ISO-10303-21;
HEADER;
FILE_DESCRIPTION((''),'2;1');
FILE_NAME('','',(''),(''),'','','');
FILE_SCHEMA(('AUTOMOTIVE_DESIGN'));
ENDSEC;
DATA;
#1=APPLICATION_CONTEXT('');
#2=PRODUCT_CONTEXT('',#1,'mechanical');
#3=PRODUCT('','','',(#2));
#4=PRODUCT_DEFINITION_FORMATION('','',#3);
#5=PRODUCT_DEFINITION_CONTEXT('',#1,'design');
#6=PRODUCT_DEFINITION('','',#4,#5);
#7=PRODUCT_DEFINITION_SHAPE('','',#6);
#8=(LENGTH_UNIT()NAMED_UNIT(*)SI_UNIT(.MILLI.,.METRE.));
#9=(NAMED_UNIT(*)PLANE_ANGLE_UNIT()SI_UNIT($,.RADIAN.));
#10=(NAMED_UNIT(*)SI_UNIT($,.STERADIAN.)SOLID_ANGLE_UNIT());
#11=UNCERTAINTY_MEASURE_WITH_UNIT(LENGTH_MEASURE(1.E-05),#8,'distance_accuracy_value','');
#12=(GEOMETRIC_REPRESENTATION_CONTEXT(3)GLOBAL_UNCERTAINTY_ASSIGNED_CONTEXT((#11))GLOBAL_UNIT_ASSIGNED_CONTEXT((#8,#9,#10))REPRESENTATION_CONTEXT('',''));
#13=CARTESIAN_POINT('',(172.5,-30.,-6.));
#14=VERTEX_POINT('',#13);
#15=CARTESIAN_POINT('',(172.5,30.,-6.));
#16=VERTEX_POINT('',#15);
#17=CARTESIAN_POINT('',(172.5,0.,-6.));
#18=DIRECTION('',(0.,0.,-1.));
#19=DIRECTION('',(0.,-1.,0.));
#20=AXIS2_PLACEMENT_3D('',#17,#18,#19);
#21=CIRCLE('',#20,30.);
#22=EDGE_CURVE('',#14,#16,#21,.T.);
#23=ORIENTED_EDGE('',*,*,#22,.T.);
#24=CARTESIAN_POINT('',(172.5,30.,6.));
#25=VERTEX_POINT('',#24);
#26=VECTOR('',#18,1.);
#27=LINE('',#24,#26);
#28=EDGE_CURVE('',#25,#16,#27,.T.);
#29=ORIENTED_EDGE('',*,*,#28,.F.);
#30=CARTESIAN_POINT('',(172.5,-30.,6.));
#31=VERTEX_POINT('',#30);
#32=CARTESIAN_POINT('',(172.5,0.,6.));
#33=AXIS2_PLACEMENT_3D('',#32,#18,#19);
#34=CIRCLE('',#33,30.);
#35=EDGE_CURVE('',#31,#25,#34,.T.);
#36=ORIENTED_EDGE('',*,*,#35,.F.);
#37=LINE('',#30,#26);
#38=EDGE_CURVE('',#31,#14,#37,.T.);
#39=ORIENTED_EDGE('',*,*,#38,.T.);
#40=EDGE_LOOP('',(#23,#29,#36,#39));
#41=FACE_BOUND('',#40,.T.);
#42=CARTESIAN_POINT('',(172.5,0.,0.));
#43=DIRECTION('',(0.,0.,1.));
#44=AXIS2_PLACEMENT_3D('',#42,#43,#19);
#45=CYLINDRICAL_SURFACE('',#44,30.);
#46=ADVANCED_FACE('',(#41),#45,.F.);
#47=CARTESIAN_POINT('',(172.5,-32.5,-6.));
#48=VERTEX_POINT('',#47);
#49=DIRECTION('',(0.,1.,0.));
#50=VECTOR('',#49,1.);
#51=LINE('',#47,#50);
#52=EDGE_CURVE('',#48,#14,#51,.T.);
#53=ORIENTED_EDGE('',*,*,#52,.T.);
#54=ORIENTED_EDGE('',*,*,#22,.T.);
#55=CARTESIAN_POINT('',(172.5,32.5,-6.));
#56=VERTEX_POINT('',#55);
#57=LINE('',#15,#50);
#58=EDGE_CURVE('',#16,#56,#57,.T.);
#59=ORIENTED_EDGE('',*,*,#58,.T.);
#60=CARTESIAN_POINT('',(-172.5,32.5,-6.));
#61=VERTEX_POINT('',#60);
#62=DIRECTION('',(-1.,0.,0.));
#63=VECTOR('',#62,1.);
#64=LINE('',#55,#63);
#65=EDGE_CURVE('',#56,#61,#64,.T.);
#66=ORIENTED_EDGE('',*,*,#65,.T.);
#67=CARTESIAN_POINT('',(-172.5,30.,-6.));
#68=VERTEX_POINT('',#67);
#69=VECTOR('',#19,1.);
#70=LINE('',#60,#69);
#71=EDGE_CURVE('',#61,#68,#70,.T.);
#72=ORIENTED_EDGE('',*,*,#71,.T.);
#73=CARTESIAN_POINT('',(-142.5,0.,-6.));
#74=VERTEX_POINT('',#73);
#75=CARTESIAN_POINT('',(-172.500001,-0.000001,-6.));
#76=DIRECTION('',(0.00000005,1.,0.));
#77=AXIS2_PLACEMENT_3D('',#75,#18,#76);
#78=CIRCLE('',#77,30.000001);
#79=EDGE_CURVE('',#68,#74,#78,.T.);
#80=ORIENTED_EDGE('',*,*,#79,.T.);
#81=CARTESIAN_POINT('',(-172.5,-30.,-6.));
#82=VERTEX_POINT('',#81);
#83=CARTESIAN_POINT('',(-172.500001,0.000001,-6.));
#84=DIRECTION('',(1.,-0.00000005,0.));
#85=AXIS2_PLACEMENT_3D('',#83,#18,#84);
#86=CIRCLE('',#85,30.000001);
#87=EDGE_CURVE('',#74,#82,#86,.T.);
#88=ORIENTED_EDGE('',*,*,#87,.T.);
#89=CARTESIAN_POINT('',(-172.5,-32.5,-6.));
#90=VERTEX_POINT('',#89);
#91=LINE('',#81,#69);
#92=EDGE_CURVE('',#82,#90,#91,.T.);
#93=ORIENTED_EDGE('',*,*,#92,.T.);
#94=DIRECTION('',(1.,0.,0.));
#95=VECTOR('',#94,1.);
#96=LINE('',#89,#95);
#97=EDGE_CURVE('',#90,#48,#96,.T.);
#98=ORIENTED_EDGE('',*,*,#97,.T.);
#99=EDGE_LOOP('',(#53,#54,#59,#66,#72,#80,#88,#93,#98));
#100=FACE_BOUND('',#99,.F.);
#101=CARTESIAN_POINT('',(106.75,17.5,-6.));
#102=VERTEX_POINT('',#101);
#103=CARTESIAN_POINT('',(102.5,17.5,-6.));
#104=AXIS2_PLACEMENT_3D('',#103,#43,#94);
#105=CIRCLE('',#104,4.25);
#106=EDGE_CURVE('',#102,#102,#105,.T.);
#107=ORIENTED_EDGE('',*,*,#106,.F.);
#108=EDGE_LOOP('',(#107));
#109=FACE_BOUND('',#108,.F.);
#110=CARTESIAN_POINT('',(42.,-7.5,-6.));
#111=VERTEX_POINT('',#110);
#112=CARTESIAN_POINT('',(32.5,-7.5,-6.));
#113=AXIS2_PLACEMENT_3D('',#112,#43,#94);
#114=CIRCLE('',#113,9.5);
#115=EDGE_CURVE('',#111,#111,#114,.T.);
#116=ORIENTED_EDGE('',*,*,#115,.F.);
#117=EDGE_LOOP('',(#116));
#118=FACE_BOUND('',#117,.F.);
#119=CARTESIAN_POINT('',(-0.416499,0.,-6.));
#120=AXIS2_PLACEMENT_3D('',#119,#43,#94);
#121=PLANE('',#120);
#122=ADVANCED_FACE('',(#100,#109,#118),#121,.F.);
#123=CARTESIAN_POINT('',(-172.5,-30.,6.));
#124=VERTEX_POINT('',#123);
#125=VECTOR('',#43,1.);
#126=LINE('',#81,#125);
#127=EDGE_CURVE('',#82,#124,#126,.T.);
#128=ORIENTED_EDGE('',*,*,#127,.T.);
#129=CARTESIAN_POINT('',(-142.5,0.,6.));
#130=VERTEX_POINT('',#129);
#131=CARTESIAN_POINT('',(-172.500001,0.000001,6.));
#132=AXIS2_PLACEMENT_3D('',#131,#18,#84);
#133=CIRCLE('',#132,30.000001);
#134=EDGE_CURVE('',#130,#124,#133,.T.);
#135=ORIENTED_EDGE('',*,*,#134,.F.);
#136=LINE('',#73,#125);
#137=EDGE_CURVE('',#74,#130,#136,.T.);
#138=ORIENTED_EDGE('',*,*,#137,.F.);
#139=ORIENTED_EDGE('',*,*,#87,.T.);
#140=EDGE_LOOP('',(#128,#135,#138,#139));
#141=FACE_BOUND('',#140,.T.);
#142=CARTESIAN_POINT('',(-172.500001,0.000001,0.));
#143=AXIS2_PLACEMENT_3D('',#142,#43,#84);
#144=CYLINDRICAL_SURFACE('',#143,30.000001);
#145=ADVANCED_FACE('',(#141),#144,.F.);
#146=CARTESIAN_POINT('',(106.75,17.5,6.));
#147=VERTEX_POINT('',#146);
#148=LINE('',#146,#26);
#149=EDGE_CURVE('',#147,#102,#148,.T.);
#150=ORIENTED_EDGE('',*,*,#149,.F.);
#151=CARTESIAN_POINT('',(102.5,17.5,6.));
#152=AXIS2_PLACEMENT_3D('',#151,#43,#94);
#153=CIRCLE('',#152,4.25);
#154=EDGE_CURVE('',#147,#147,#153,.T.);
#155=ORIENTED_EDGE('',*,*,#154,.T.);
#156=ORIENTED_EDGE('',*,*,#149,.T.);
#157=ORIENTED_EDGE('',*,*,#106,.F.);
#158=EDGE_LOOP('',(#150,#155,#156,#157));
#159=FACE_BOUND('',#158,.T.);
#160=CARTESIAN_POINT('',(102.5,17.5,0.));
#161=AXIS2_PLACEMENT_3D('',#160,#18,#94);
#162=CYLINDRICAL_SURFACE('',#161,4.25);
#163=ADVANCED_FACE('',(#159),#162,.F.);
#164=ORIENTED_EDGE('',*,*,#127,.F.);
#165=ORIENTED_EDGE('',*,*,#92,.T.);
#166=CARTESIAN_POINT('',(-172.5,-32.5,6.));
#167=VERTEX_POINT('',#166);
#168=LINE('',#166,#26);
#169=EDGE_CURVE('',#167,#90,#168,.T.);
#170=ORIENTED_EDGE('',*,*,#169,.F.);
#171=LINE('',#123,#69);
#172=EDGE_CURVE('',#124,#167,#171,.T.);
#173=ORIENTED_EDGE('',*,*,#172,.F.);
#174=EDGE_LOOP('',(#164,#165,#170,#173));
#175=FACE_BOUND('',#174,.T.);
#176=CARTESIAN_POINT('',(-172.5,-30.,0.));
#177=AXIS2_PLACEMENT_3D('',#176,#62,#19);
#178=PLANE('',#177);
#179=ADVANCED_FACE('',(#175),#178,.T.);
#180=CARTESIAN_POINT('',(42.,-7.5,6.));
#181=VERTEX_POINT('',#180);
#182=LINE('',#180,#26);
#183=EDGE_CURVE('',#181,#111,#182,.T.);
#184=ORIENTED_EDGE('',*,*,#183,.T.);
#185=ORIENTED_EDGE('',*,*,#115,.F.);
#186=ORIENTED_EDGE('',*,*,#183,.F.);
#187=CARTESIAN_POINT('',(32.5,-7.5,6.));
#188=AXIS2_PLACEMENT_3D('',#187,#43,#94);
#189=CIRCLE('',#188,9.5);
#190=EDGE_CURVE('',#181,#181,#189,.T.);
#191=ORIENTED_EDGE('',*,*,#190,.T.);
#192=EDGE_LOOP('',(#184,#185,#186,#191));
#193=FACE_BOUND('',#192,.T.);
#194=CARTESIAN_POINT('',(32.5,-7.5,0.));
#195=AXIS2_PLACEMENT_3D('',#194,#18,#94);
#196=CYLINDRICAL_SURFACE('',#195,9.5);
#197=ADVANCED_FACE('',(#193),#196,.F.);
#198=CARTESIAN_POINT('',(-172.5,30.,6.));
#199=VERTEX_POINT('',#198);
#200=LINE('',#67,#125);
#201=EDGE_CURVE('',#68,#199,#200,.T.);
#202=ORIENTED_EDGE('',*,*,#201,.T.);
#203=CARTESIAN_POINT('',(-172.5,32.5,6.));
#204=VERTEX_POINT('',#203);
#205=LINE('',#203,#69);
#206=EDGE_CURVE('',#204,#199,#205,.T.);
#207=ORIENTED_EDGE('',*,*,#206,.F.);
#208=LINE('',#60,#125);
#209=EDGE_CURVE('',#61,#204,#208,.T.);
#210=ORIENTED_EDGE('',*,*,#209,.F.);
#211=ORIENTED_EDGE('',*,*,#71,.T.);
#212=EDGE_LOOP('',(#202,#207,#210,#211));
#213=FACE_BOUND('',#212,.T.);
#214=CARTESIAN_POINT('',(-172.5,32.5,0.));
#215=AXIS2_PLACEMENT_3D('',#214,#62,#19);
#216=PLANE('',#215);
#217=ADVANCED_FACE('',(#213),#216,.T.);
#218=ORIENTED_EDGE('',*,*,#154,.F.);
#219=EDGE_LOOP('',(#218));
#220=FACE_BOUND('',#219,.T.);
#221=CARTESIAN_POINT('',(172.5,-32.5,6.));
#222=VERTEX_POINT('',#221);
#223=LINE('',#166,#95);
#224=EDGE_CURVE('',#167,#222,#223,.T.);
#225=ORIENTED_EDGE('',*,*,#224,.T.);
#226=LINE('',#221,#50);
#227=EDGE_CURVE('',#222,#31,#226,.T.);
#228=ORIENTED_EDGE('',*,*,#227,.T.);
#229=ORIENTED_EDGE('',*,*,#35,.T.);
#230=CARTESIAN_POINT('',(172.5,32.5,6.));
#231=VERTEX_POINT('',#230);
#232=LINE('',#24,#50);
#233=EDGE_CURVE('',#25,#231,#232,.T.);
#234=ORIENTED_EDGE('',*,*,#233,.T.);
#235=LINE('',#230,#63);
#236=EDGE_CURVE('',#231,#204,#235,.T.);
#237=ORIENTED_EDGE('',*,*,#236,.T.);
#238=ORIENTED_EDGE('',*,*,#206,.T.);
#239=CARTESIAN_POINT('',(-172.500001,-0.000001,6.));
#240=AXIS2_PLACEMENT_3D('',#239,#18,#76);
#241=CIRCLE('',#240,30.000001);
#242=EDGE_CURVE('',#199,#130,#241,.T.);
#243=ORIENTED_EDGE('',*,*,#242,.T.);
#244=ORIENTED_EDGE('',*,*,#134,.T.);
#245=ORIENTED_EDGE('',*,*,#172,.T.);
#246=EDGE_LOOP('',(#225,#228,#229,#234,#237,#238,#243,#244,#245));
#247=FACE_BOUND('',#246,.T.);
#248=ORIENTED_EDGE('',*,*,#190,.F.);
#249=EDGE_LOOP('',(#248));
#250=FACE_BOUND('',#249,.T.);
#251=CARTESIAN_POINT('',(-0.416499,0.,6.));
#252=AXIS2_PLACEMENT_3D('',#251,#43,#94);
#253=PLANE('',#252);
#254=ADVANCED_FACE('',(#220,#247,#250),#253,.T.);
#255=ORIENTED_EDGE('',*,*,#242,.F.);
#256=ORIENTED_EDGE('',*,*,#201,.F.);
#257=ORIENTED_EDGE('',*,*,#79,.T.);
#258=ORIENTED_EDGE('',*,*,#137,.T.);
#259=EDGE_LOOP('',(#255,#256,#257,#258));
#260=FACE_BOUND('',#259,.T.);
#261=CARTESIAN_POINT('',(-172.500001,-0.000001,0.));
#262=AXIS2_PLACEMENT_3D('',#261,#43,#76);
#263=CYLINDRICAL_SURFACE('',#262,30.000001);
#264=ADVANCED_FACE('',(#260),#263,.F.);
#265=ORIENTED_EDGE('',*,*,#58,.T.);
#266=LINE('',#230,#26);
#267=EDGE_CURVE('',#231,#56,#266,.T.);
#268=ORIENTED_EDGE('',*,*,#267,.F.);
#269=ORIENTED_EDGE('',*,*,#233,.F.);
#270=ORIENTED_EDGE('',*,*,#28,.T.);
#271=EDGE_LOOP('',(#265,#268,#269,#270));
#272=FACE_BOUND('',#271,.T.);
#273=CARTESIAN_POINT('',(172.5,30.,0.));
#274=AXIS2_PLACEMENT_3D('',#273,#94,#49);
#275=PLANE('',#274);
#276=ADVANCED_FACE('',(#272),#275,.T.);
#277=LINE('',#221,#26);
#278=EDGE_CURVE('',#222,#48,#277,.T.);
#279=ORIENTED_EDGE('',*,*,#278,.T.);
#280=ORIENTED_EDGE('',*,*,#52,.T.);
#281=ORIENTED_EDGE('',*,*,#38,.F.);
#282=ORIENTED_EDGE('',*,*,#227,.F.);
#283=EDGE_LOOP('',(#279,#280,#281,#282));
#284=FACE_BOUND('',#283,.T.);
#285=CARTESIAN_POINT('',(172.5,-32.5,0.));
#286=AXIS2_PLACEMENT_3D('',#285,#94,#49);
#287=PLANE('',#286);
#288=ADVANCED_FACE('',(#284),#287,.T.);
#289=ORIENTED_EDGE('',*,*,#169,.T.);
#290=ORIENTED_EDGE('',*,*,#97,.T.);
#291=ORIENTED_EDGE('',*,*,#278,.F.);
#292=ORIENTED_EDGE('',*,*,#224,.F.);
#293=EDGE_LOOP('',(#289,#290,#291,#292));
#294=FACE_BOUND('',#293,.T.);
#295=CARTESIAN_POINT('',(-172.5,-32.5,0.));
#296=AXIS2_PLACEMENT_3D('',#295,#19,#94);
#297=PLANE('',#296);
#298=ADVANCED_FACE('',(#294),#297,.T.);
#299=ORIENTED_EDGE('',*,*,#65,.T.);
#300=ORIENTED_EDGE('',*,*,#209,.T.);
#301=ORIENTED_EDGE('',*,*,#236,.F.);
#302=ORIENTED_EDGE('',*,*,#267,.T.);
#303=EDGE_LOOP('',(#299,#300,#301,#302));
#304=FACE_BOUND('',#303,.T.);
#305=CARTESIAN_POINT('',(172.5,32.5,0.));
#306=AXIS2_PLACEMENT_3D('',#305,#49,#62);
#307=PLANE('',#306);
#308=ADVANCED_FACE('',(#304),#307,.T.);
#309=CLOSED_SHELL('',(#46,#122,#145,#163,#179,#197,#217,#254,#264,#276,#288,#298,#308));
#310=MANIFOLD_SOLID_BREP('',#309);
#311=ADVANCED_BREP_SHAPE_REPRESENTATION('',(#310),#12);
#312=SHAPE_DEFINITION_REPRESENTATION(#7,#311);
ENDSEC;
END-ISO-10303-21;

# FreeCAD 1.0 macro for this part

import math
import FreeCAD as App
import Part
import Sketcher

doc = App.newDocument("Part")
body = doc.addObject("PartDesign::Body", "Body")

sketch1 = body.newObject("Sketcher::SketchObject", "Sketch")
sketch1.AttachmentSupport = (doc.getObject("XY_Plane"), [""])
sketch1.MapMode = "FlatFace"
sketch1.addGeometry([
    Part.LineSegment(App.Vector(172.5, 32.5, 0), App.Vector(-172.5, 32.5, 0)),
    Part.LineSegment(App.Vector(-172.5, 32.5, 0), App.Vector(-172.5, 30, 0)),
    Part.ArcOfCircle(Part.Circle(App.Vector(-172.5, 0, 0), App.Vector(0, 0, 1), 30), math.radians(0), math.radians(90)),
    Part.ArcOfCircle(Part.Circle(App.Vector(-172.5, 0, 0), App.Vector(0, 0, 1), 30), math.radians(-90), math.radians(0)),
    Part.LineSegment(App.Vector(-172.5, -30, 0), App.Vector(-172.5, -32.5, 0)),
    Part.LineSegment(App.Vector(-172.5, -32.5, 0), App.Vector(172.5, -32.5, 0)),
    Part.LineSegment(App.Vector(172.5, -32.5, 0), App.Vector(172.5, -30, 0)),
    Part.ArcOfCircle(Part.Circle(App.Vector(172.5, 0, 0), App.Vector(0, 0, 1), 30), math.radians(90), math.radians(270)),
    Part.LineSegment(App.Vector(172.5, 30, 0), App.Vector(172.5, 32.5, 0)),
    Part.Circle(App.Vector(32.5, -7.5, 0), App.Vector(0, 0, 1), 9.5),
    Part.Circle(App.Vector(102.5, 17.5, 0), App.Vector(0, 0, 1), 4.2),
], False)
sketch1.addConstraint([
    Sketcher.Constraint("Coincident", 0, 2, 1, 1),
    Sketcher.Constraint("Coincident", 1, 2, 2, 2),
    Sketcher.Constraint("Tangent", 2, 1, 3, 2),
    Sketcher.Constraint("Coincident", 3, 1, 4, 1),
    Sketcher.Constraint("Coincident", 4, 2, 5, 1),
    Sketcher.Constraint("Coincident", 5, 2, 6, 1),
    Sketcher.Constraint("Coincident", 6, 2, 7, 2),
    Sketcher.Constraint("Coincident", 7, 1, 8, 1),
    Sketcher.Constraint("Coincident", 8, 2, 0, 1),
    Sketcher.Constraint("Horizontal", 0),
    Sketcher.Constraint("Vertical", 1),
    Sketcher.Constraint("Vertical", 4),
    Sketcher.Constraint("Horizontal", 5),
    Sketcher.Constraint("Vertical", 6),
    Sketcher.Constraint("Vertical", 8),
    Sketcher.Constraint("Equal", 2, 3),
    Sketcher.Constraint("Equal", 3, 7),
    Sketcher.Constraint("Symmetric", 2, 3, 7, 3, -1, 1),
    Sketcher.Constraint("Symmetric", 0, 2, 5, 2, -1, 1),
    Sketcher.Constraint("Symmetric", 3, 1, 6, 2, -2),
    Sketcher.Constraint("PointOnObject", 2, 1, -1),
    Sketcher.Constraint("Vertical", 3, 3, 0, 2),
    Sketcher.Constraint("Vertical", 6, 2, 7, 1),
    Sketcher.Constraint("Diameter", 9, 19.0),
    Sketcher.Constraint("Radius", 2, 30.000001),
    Sketcher.Constraint("Diameter", 10, 8.5),
    Sketcher.Constraint("DistanceX", 0, 2, 0, 1, 345.0),
    Sketcher.Constraint("DistanceY", 1, 2, 1, 1, 2.5),
    Sketcher.Constraint("DistanceX", 9, 3, 7, 3, 140.0),
    Sketcher.Constraint("DistanceX", 10, 3, 7, 3, 70.0),
    Sketcher.Constraint("DistanceY", 9, 3, 10, 3, 25.0),
    Sketcher.Constraint("DistanceY", 9, 3, 0, 2, 40.0),
])
pad1 = body.newObject("PartDesign::Pad", "Pad")
pad1.Profile = sketch1
pad1.Length = 12
pad1.Midplane = True

doc.recompute()
